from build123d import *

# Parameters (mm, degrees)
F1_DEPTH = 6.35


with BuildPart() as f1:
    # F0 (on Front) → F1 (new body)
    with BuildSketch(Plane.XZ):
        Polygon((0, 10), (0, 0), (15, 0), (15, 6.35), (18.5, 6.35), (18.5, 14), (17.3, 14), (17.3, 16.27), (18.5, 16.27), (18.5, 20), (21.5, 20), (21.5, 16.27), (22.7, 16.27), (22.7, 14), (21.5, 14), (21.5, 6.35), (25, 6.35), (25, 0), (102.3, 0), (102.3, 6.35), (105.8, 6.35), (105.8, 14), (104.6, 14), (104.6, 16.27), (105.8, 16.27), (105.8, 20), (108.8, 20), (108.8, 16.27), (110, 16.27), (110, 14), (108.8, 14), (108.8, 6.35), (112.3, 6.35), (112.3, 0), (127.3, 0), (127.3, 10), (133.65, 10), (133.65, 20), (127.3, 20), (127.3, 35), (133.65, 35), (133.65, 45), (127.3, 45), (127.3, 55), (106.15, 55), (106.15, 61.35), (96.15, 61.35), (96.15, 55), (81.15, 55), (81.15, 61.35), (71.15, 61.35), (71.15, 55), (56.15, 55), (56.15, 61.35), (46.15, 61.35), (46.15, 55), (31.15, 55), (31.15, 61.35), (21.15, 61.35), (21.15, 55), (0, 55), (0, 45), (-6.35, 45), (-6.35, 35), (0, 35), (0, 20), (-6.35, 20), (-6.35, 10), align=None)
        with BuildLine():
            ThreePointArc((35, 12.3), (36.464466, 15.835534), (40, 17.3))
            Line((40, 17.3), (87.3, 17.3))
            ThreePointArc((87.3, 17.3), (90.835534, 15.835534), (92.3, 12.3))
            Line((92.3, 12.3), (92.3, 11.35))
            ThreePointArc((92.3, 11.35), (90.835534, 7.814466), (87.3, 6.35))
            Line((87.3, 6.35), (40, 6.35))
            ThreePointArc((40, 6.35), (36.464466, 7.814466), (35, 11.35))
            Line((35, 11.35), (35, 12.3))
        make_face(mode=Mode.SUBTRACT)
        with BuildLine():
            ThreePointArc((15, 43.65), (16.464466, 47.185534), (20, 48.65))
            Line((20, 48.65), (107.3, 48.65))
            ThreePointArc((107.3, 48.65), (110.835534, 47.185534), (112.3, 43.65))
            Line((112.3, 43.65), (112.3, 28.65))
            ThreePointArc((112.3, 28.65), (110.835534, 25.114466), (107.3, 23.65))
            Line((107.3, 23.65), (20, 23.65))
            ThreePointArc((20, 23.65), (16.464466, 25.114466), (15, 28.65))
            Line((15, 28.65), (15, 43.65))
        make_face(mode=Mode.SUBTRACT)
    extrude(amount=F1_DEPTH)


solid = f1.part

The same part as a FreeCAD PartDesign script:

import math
import FreeCAD as App
import Part
import Sketcher


def add_polygon(sketch, points):
    """Adds a closed chain of lines whose ends are joined by coincident constraints."""
    first, n = sketch.GeometryCount, len(points)
    for a, b in zip(points, points[1:] + points[:1]):
        sketch.addGeometry(Part.LineSegment(App.Vector(*a, 0), App.Vector(*b, 0)), False)
    for i in range(n):
        sketch.addConstraint(Sketcher.Constraint("Coincident", first + i, 2, first + (i + 1) % n, 1))

doc = App.newDocument("Part")
body = doc.addObject("PartDesign::Body", "Body")

# Sketch on XZ plane
sketch1 = doc.addObject("Sketcher::SketchObject", "Sketch")
body.addObject(sketch1)
sketch1.AttachmentSupport = (doc.XZ_Plane, [""])
sketch1.MapMode = "FlatFace"
add_polygon(sketch1, [(0, 10), (0, 0), (15, 0), (15, 6.3), (18.5, 6.3), (18.5, 14), (17.3, 14), (17.3, 16.3), (18.5, 16.3), (18.5, 20), (21.5, 20), (21.5, 16.3), (22.7, 16.3), (22.7, 14), (21.5, 14), (21.5, 6.3), (25, 6.3), (25, 0), (102.3, 0), (102.3, 6.3), (105.8, 6.3), (105.8, 14), (104.6, 14), (104.6, 16.3), (105.8, 16.3), (105.8, 20), (108.8, 20), (108.8, 16.3), (110, 16.3), (110, 14), (108.8, 14), (108.8, 6.3), (112.3, 6.3), (112.3, 0), (127.3, 0), (127.3, 10), (133.7, 10), (133.7, 20), (127.3, 20), (127.3, 35), (133.7, 35), (133.7, 45), (127.3, 45), (127.3, 55), (106.2, 55), (106.2, 61.4), (96.2, 61.4), (96.2, 55), (81.2, 55), (81.2, 61.4), (71.2, 61.4), (71.2, 55), (56.1, 55), (56.1, 61.4), (46.1, 61.4), (46.1, 55), (31.1, 55), (31.1, 61.4), (21.1, 61.4), (21.1, 55), (0, 55), (0, 45), (-6.3, 45), (-6.3, 35), (0, 35), (0, 20), (-6.3, 20), (-6.3, 10)])  # lines 0-67
sketch1.addGeometry(Part.LineSegment(App.Vector(35, 11.3, 0), App.Vector(35, 12.3, 0)), False)  # 68
sketch1.addGeometry(Part.ArcOfCircle(Part.Circle(App.Vector(40, 12.3, 0), App.Vector(0, 0, 1), 5), math.radians(90), math.radians(180)), False)  # 69
sketch1.addGeometry(Part.LineSegment(App.Vector(40, 17.3, 0), App.Vector(87.3, 17.3, 0)), False)  # 70
sketch1.addGeometry(Part.ArcOfCircle(Part.Circle(App.Vector(87.3, 12.3, 0), App.Vector(0, 0, 1), 5), math.radians(0), math.radians(90)), False)  # 71
sketch1.addGeometry(Part.LineSegment(App.Vector(92.3, 12.3, 0), App.Vector(92.3, 11.3, 0)), False)  # 72
sketch1.addGeometry(Part.ArcOfCircle(Part.Circle(App.Vector(87.3, 11.3, 0), App.Vector(0, 0, 1), 5), math.radians(-90), math.radians(0)), False)  # 73
sketch1.addGeometry(Part.LineSegment(App.Vector(87.3, 6.3, 0), App.Vector(40, 6.3, 0)), False)  # 74
sketch1.addGeometry(Part.ArcOfCircle(Part.Circle(App.Vector(40, 11.3, 0), App.Vector(0, 0, 1), 5), math.radians(180), math.radians(270)), False)  # 75
sketch1.addGeometry(Part.LineSegment(App.Vector(15, 28.6, 0), App.Vector(15, 43.6, 0)), False)  # 76
sketch1.addGeometry(Part.ArcOfCircle(Part.Circle(App.Vector(20, 43.7, 0), App.Vector(0, 0, 1), 5), math.radians(90), math.radians(180)), False)  # 77
sketch1.addGeometry(Part.LineSegment(App.Vector(20, 48.6, 0), App.Vector(107.3, 48.6, 0)), False)  # 78
sketch1.addGeometry(Part.ArcOfCircle(Part.Circle(App.Vector(107.3, 43.7, 0), App.Vector(0, 0, 1), 5), math.radians(0), math.radians(90)), False)  # 79
sketch1.addGeometry(Part.LineSegment(App.Vector(112.3, 43.6, 0), App.Vector(112.3, 28.6, 0)), False)  # 80
sketch1.addGeometry(Part.ArcOfCircle(Part.Circle(App.Vector(107.3, 28.6, 0), App.Vector(0, 0, 1), 5), math.radians(-90), math.radians(0)), False)  # 81
sketch1.addGeometry(Part.LineSegment(App.Vector(107.3, 23.6, 0), App.Vector(20, 23.6, 0)), False)  # 82
sketch1.addGeometry(Part.ArcOfCircle(Part.Circle(App.Vector(20, 28.6, 0), App.Vector(0, 0, 1), 5), math.radians(180), math.radians(270)), False)  # 83
sketch1.addConstraint([
    Sketcher.Constraint("Tangent", 68, 2, 69, 2),
    Sketcher.Constraint("Tangent", 69, 1, 70, 1),
    Sketcher.Constraint("Tangent", 70, 2, 71, 2),
    Sketcher.Constraint("Tangent", 71, 1, 72, 1),
    Sketcher.Constraint("Tangent", 72, 2, 73, 2),
    Sketcher.Constraint("Tangent", 73, 1, 74, 1),
    Sketcher.Constraint("Tangent", 74, 2, 75, 2),
    Sketcher.Constraint("Tangent", 75, 1, 68, 1),
    Sketcher.Constraint("Tangent", 76, 2, 77, 2),
    Sketcher.Constraint("Tangent", 77, 1, 78, 1),
    Sketcher.Constraint("Tangent", 78, 2, 79, 2),
    Sketcher.Constraint("Tangent", 79, 1, 80, 1),
    Sketcher.Constraint("Tangent", 80, 2, 81, 2),
    Sketcher.Constraint("Tangent", 81, 1, 82, 1),
    Sketcher.Constraint("Tangent", 82, 2, 83, 2),
    Sketcher.Constraint("Tangent", 83, 1, 76, 1),
    Sketcher.Constraint("Vertical", 0),
    Sketcher.Constraint("Horizontal", 1),
    Sketcher.Constraint("Vertical", 2),
    Sketcher.Constraint("Horizontal", 3),
    Sketcher.Constraint("Vertical", 4),
    Sketcher.Constraint("Horizontal", 5),
    Sketcher.Constraint("Vertical", 6),
    Sketcher.Constraint("Horizontal", 7),
    Sketcher.Constraint("Vertical", 8),
    Sketcher.Constraint("Horizontal", 9),
    Sketcher.Constraint("Vertical", 10),
    Sketcher.Constraint("Horizontal", 11),
    Sketcher.Constraint("Vertical", 12),
    Sketcher.Constraint("Horizontal", 13),
    Sketcher.Constraint("Vertical", 14),
    Sketcher.Constraint("Horizontal", 15),
    Sketcher.Constraint("Vertical", 16),
    Sketcher.Constraint("Horizontal", 17),
    Sketcher.Constraint("Vertical", 18),
    Sketcher.Constraint("Horizontal", 19),
    Sketcher.Constraint("Vertical", 20),
    Sketcher.Constraint("Horizontal", 21),
    Sketcher.Constraint("Vertical", 22),
    Sketcher.Constraint("Horizontal", 23),
    Sketcher.Constraint("Vertical", 24),
    Sketcher.Constraint("Horizontal", 25),
    Sketcher.Constraint("Vertical", 26),
    Sketcher.Constraint("Horizontal", 27),
    Sketcher.Constraint("Vertical", 28),
    Sketcher.Constraint("Horizontal", 29),
    Sketcher.Constraint("Vertical", 30),
    Sketcher.Constraint("Horizontal", 31),
    Sketcher.Constraint("Vertical", 32),
    Sketcher.Constraint("Horizontal", 33),
    Sketcher.Constraint("Vertical", 34),
    Sketcher.Constraint("Horizontal", 35),
    Sketcher.Constraint("Vertical", 36),
    Sketcher.Constraint("Horizontal", 37),
    Sketcher.Constraint("Vertical", 38),
    Sketcher.Constraint("Horizontal", 39),
    Sketcher.Constraint("Vertical", 40),
    Sketcher.Constraint("Horizontal", 41),
    Sketcher.Constraint("Vertical", 42),
    Sketcher.Constraint("Horizontal", 43),
    Sketcher.Constraint("Vertical", 44),
    Sketcher.Constraint("Horizontal", 45),
    Sketcher.Constraint("Vertical", 46),
    Sketcher.Constraint("Horizontal", 47),
    Sketcher.Constraint("Vertical", 48),
    Sketcher.Constraint("Horizontal", 49),
    Sketcher.Constraint("Vertical", 50),
    Sketcher.Constraint("Horizontal", 51),
    Sketcher.Constraint("Vertical", 52),
    Sketcher.Constraint("Horizontal", 53),
    Sketcher.Constraint("Vertical", 54),
    Sketcher.Constraint("Horizontal", 55),
    Sketcher.Constraint("Vertical", 56),
    Sketcher.Constraint("Horizontal", 57),
    Sketcher.Constraint("Vertical", 58),
    Sketcher.Constraint("Horizontal", 59),
    Sketcher.Constraint("Vertical", 60),
    Sketcher.Constraint("Horizontal", 61),
    Sketcher.Constraint("Vertical", 62),
    Sketcher.Constraint("Horizontal", 63),
    Sketcher.Constraint("Vertical", 64),
    Sketcher.Constraint("Horizontal", 65),
    Sketcher.Constraint("Vertical", 66),
    Sketcher.Constraint("Horizontal", 67),
    Sketcher.Constraint("Vertical", 68),
    Sketcher.Constraint("Horizontal", 70),
    Sketcher.Constraint("Vertical", 72),
    Sketcher.Constraint("Horizontal", 74),
    Sketcher.Constraint("Vertical", 76),
    Sketcher.Constraint("Horizontal", 78),
    Sketcher.Constraint("Vertical", 80),
    Sketcher.Constraint("Horizontal", 82),
    Sketcher.Constraint("Coincident", 0, 2, -1, 1),
    Sketcher.Constraint("Equal", 69, 71),
    Sketcher.Constraint("Equal", 71, 73),
    Sketcher.Constraint("Equal", 73, 75),
    Sketcher.Constraint("Equal", 75, 77),
    Sketcher.Constraint("Equal", 77, 79),
    Sketcher.Constraint("Equal", 79, 81),
    Sketcher.Constraint("Equal", 81, 83),
    Sketcher.Constraint("PointOnObject", 16, 2, -1),
    Sketcher.Constraint("PointOnObject", 32, 2, -1),
    Sketcher.Constraint("PointOnObject", 59, 2, -2),
    Sketcher.Constraint("PointOnObject", 63, 2, -2),
    Sketcher.Constraint("Horizontal", 7, 2, 10, 2),
    Sketcher.Constraint("Horizontal", 5, 2, 12, 2),
    Sketcher.Constraint("Horizontal", 3, 2, 14, 2),
    Sketcher.Constraint("Horizontal", 15, 2, 18, 2),
    Sketcher.Constraint("Horizontal", 13, 2, 20, 2),
    Sketcher.Constraint("Horizontal", 11, 2, 22, 2),
    Sketcher.Constraint("Horizontal", 9, 2, 24, 2),
    Sketcher.Constraint("Horizontal", 23, 2, 26, 2),
    Sketcher.Constraint("Horizontal", 21, 2, 28, 2),
    Sketcher.Constraint("Horizontal", 19, 2, 30, 2),
    Sketcher.Constraint("Horizontal", 25, 2, 36, 2),
    Sketcher.Constraint("Horizontal", 43, 2, 46, 2),
    Sketcher.Constraint("Horizontal", 45, 2, 48, 2),
    Sketcher.Constraint("Horizontal", 47, 2, 50, 2),
    Sketcher.Constraint("Horizontal", 49, 2, 52, 2),
    Sketcher.Constraint("Horizontal", 51, 2, 54, 2),
    Sketcher.Constraint("Horizontal", 53, 2, 56, 2),
    Sketcher.Constraint("Horizontal", 55, 2, 58, 2),
    Sketcher.Constraint("Horizontal", 41, 2, 60, 2),
    Sketcher.Constraint("Horizontal", 39, 2, 62, 2),
    Sketcher.Constraint("Horizontal", 37, 2, 64, 2),
    Sketcher.Constraint("Horizontal", 35, 2, 66, 2),
    Sketcher.Constraint("Horizontal", 31, 2, 73, 1),
    Sketcher.Constraint("Vertical", 4, 2, 7, 2),
    Sketcher.Constraint("Vertical", 10, 2, 13, 2),
    Sketcher.Constraint("Vertical", 20, 2, 23, 2),
    Sketcher.Constraint("Vertical", 26, 2, 29, 2),
    Sketcher.Constraint("Vertical", 34, 2, 37, 2),
    Sketcher.Constraint("Vertical", 36, 2, 39, 2),
    Sketcher.Constraint("Vertical", 38, 2, 41, 2),
    Sketcher.Constraint("Vertical", 62, 2, 65, 2),
    Sketcher.Constraint("Vertical", 2, 2, 76, 2),
    Sketcher.Constraint("Vertical", 32, 2, 79, 1),
    Sketcher.Constraint("Equal", 7, 11),
    Sketcher.Constraint("Equal", 3, 15),
    Sketcher.Constraint("Equal", 15, 19),
    Sketcher.Constraint("Equal", 13, 21),
    Sketcher.Constraint("Equal", 9, 25),
    Sketcher.Constraint("Equal", 23, 27),
    Sketcher.Constraint("Equal", 19, 31),
    Sketcher.Constraint("Equal", 1, 33),
    Sketcher.Constraint("Equal", 33, 47),
    Sketcher.Constraint("Equal", 45, 49),
    Sketcher.Constraint("Equal", 47, 51),
    Sketcher.Constraint("Equal", 49, 53),
    Sketcher.Constraint("Equal", 51, 55),
    Sketcher.Constraint("Equal", 53, 57),
    Sketcher.Constraint("Equal", 43, 59),
    Sketcher.Constraint("Equal", 41, 61),
    Sketcher.Constraint("Equal", 57, 0),
    Sketcher.Constraint("Equal", 67, 2),
    Sketcher.Constraint("Equal", 34, 36),
    Sketcher.Constraint("Equal", 55, 38),
    Sketcher.Constraint("Equal", 36, 40),
    Sketcher.Constraint("Equal", 40, 42),
    Sketcher.Constraint("Equal", 32, 44),
    Sketcher.Constraint("Equal", 64, 76),
    Sketcher.Constraint("Radius", 69, 5.0),
    Sketcher.Constraint("DistanceX", 1, 1, 1, 2, 15.0),
    Sketcher.Constraint("DistanceX", 9, 1, 9, 2, 3.0),
    Sketcher.Constraint("DistanceX", 45, 2, 45, 1, 10.0),
    Sketcher.Constraint("DistanceX", 3, 1, 3, 2, 3.5),
    Sketcher.Constraint("DistanceX", 5, 2, 5, 1, 1.2),
    Sketcher.Constraint("DistanceX", 17, 1, 17, 2, 77.3),
    Sketcher.Constraint("DistanceX", 70, 1, 70, 2, 47.3),
    Sketcher.Constraint("DistanceX", -1, 1, 69, 3, 40.0),
    Sketcher.Constraint("DistanceY", -1, 1, 4, 2, 14.0),
    Sketcher.Constraint("DistanceX", 35, 1, 35, 2, 6.35),
    Sketcher.Constraint("DistanceY", 6, 1, 6, 2, 2.27),
    Sketcher.Constraint("DistanceY", 68, 1, 68, 2, 0.95),
    Sketcher.Constraint("DistanceY", -1, 1, 77, 3, 43.65),
])
pad1 = doc.addObject("PartDesign::Pad", "Pad")
body.addObject(pad1)
pad1.Profile = sketch1
pad1.Length = 6.35

doc.recompute()
